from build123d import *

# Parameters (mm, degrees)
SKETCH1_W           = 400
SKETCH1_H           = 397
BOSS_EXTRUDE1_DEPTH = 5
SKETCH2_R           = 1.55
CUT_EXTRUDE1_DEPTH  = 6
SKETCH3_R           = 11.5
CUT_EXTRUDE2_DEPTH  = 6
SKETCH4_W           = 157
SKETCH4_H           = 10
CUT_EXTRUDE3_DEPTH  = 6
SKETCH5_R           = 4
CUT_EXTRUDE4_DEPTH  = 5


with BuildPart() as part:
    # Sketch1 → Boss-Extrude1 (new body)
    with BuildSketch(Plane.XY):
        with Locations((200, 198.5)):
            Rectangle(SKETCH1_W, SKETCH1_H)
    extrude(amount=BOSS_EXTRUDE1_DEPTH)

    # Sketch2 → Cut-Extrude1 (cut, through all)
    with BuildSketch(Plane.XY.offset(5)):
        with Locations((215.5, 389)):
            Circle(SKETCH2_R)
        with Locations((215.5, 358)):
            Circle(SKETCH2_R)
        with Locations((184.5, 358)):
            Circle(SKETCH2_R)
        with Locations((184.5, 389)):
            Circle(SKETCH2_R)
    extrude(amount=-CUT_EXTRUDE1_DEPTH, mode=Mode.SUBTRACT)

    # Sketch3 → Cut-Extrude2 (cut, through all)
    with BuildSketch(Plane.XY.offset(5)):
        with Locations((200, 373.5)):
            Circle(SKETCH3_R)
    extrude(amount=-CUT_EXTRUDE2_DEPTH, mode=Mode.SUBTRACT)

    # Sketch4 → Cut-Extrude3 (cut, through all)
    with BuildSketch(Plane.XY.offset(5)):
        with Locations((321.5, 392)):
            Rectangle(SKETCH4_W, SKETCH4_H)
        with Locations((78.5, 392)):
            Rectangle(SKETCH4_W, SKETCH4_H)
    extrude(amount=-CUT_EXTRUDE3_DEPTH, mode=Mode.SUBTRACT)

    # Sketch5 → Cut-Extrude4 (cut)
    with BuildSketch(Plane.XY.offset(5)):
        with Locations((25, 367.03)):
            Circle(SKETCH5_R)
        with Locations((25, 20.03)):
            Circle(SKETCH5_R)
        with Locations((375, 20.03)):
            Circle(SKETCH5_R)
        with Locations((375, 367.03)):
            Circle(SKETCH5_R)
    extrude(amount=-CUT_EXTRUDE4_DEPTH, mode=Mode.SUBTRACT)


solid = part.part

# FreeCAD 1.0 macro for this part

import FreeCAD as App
import Part
import Sketcher


def add_polygon(sketch, points):
    """Adds a closed chain of lines whose ends are joined by coincident constraints."""
    first, n = sketch.GeometryCount, len(points)
    for a, b in zip(points, points[1:] + points[:1]):
        sketch.addGeometry(Part.LineSegment(App.Vector(*a, 0), App.Vector(*b, 0)), False)
    for i in range(n):
        sketch.addConstraint(Sketcher.Constraint("Coincident", first + i, 2, first + (i + 1) % n, 1))

doc = App.newDocument("Part")
body = doc.addObject("PartDesign::Body", "Body")

# Sketch on XY plane
sketch1 = body.newObject("Sketcher::SketchObject", "Sketch")
sketch1.AttachmentSupport = (doc.getObject("XY_Plane"), [""])
sketch1.MapMode = "FlatFace"
add_polygon(sketch1, [(0, 397), (0, 0), (400, 0), (400, 397)])  # lines 0-3
sketch1.addConstraint([
    Sketcher.Constraint("Vertical", 0),
    Sketcher.Constraint("Horizontal", 1),
    Sketcher.Constraint("Vertical", 2),
    Sketcher.Constraint("Horizontal", 3),
    Sketcher.Constraint("Coincident", 0, 2, -1, 1),
    Sketcher.Constraint("DistanceX", 1, 1, 1, 2, 400.0),
    Sketcher.Constraint("DistanceY", 0, 2, 0, 1, 397.0),
])
pad1 = body.newObject("PartDesign::Pad", "Pad")
pad1.Profile = sketch1
pad1.Length = 5

# Sketch on XY plane
sketch2 = body.newObject("Sketcher::SketchObject", "Sketch001")
sketch2.AttachmentSupport = (doc.getObject("XY_Plane"), [""])
sketch2.MapMode = "FlatFace"
sketch2.AttachmentOffset = App.Placement(App.Vector(0, 0, 5), App.Rotation())
sketch2.addGeometry([
    Part.Circle(App.Vector(215.5, 389, 0), App.Vector(0, 0, 1), 1.55),
    Part.Circle(App.Vector(215.5, 358, 0), App.Vector(0, 0, 1), 1.55),
    Part.Circle(App.Vector(184.5, 358, 0), App.Vector(0, 0, 1), 1.55),
    Part.Circle(App.Vector(184.5, 389, 0), App.Vector(0, 0, 1), 1.55),
], False)
sketch2.addConstraint([
    Sketcher.Constraint("Equal", 0, 1),
    Sketcher.Constraint("Equal", 1, 2),
    Sketcher.Constraint("Equal", 2, 3),
    Sketcher.Constraint("Horizontal", 1, 3, 2, 3),
    Sketcher.Constraint("Horizontal", 0, 3, 3, 3),
    Sketcher.Constraint("Vertical", 0, 3, 1, 3),
    Sketcher.Constraint("Vertical", 2, 3, 3, 3),
    Sketcher.Constraint("Diameter", 0, 3.1),
    Sketcher.Constraint("DistanceY", -1, 1, 0, 3, 389.0),
    Sketcher.Constraint("DistanceY", -1, 1, 1, 3, 358.0),
    Sketcher.Constraint("DistanceX", 2, 3, 1, 3, 31.0),
    Sketcher.Constraint("DistanceX", -1, 1, 0, 3, 215.5),
])
pocket1 = body.newObject("PartDesign::Pocket", "Pocket")
pocket1.Profile = sketch2
pocket1.Type = "ThroughAll"

# Sketch on XY plane
sketch3 = body.newObject("Sketcher::SketchObject", "Sketch002")
sketch3.AttachmentSupport = (doc.getObject("XY_Plane"), [""])
sketch3.MapMode = "FlatFace"
sketch3.AttachmentOffset = App.Placement(App.Vector(0, 0, 5), App.Rotation())
sketch3.addGeometry(Part.Circle(App.Vector(200, 373.5, 0), App.Vector(0, 0, 1), 11.5), False)
sketch3.addConstraint([
    Sketcher.Constraint("Diameter", 0, 23.0),
    Sketcher.Constraint("DistanceX", -1, 1, 0, 3, 200.0),
    Sketcher.Constraint("DistanceY", -1, 1, 0, 3, 373.5),
])
pocket2 = body.newObject("PartDesign::Pocket", "Pocket001")
pocket2.Profile = sketch3
pocket2.Type = "ThroughAll"

# Sketch on XY plane
sketch4 = body.newObject("Sketcher::SketchObject", "Sketch003")
sketch4.AttachmentSupport = (doc.getObject("XY_Plane"), [""])
sketch4.MapMode = "FlatFace"
sketch4.AttachmentOffset = App.Placement(App.Vector(0, 0, 5), App.Rotation())
add_polygon(sketch4, [(243, 397), (243, 387), (400, 387), (400, 397)])  # lines 0-3
add_polygon(sketch4, [(0, 397), (0, 387), (157, 387), (157, 397)])  # lines 4-7
sketch4.addConstraint([
    Sketcher.Constraint("Vertical", 0),
    Sketcher.Constraint("Horizontal", 1),
    Sketcher.Constraint("Vertical", 2),
    Sketcher.Constraint("Horizontal", 3),
    Sketcher.Constraint("Vertical", 4),
    Sketcher.Constraint("Horizontal", 5),
    Sketcher.Constraint("Vertical", 6),
    Sketcher.Constraint("Horizontal", 7),
    Sketcher.Constraint("PointOnObject", 4, 2, -2),
    Sketcher.Constraint("Horizontal", 1, 2, 4, 2),
    Sketcher.Constraint("Horizontal", 3, 2, 6, 2),
    Sketcher.Constraint("Equal", 3, 5),
    Sketcher.Constraint("DistanceX", 1, 1, 1, 2, 157.0),
    Sketcher.Constraint("DistanceY", 0, 2, 0, 1, 10.0),
    Sketcher.Constraint("DistanceX", -1, 1, 0, 2, 243.0),
    Sketcher.Constraint("DistanceY", -1, 1, 0, 2, 387.0),
])
pocket3 = body.newObject("PartDesign::Pocket", "Pocket002")
pocket3.Profile = sketch4
pocket3.Type = "ThroughAll"

# Sketch on XY plane
sketch5 = body.newObject("Sketcher::SketchObject", "Sketch004")
sketch5.AttachmentSupport = (doc.getObject("XY_Plane"), [""])
sketch5.MapMode = "FlatFace"
sketch5.AttachmentOffset = App.Placement(App.Vector(0, 0, 5), App.Rotation())
sketch5.addGeometry([
    Part.Circle(App.Vector(25, 367.03, 0), App.Vector(0, 0, 1), 4),
    Part.Circle(App.Vector(25, 20.03, 0), App.Vector(0, 0, 1), 4),
    Part.Circle(App.Vector(375, 20.03, 0), App.Vector(0, 0, 1), 4),
    Part.Circle(App.Vector(375, 367.03, 0), App.Vector(0, 0, 1), 4),
], False)
sketch5.addConstraint([
    Sketcher.Constraint("Equal", 0, 1),
    Sketcher.Constraint("Equal", 1, 2),
    Sketcher.Constraint("Equal", 2, 3),
    Sketcher.Constraint("Horizontal", 1, 3, 2, 3),
    Sketcher.Constraint("Horizontal", 0, 3, 3, 3),
    Sketcher.Constraint("Vertical", 0, 3, 1, 3),
    Sketcher.Constraint("Vertical", 2, 3, 3, 3),
    Sketcher.Constraint("Diameter", 0, 8.0),
    Sketcher.Constraint("DistanceX", -1, 1, 0, 3, 25.0),
    Sketcher.Constraint("DistanceX", -1, 1, 2, 3, 375.0),
    Sketcher.Constraint("DistanceY", 1, 3, 0, 3, 347.0),
    Sketcher.Constraint("DistanceY", -1, 1, 0, 3, 367.03),
])
pocket4 = body.newObject("PartDesign::Pocket", "Pocket003")
pocket4.Profile = sketch5
pocket4.Length = 5

doc.recompute()
